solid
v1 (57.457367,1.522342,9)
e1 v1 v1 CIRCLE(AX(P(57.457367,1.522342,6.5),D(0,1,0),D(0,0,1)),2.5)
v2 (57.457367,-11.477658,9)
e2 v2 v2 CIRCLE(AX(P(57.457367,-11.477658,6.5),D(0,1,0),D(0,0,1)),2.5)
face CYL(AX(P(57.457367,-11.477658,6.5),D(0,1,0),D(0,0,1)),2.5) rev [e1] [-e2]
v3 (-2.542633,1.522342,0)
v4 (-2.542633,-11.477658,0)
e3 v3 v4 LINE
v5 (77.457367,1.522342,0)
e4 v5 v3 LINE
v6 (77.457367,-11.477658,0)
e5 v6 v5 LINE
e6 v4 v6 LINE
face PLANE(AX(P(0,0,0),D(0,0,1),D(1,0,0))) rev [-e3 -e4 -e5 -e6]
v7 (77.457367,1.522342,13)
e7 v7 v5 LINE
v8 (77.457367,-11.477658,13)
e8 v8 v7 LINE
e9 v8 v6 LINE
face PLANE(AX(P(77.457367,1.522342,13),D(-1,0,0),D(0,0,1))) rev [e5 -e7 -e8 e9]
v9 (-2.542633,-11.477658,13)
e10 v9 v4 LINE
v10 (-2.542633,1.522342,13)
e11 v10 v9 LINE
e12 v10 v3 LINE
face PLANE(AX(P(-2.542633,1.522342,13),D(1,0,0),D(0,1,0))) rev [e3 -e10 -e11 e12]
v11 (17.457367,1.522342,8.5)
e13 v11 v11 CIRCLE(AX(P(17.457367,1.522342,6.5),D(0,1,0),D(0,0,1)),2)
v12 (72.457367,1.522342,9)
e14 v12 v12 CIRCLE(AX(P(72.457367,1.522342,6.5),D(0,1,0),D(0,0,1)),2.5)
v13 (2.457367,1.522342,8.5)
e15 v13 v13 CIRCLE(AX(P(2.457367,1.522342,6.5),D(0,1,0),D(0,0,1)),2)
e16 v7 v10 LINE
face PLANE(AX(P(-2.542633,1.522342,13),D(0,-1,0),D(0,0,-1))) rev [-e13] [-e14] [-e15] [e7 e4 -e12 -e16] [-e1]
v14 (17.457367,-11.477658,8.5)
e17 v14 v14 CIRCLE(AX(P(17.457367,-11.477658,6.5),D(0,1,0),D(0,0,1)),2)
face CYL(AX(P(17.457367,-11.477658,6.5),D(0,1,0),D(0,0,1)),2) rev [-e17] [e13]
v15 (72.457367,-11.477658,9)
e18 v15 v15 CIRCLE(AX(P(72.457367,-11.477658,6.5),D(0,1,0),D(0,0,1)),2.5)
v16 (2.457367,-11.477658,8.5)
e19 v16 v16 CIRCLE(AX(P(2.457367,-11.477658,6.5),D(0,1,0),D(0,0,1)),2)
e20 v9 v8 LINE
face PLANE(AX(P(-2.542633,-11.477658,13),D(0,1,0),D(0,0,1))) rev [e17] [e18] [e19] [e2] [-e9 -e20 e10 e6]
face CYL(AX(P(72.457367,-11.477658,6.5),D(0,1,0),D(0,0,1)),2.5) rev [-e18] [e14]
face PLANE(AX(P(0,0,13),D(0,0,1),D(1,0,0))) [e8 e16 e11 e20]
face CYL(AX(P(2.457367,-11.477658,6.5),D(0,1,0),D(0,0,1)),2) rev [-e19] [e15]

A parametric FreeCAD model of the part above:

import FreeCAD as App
import Part
import Sketcher
from FreeCAD import Vector
Q = App.Units.Quantity

doc = App.newDocument("Part")
body = doc.addObject("PartDesign::Body", "Body")

# Sketch on XY plane
sketch1 = doc.addObject("Sketcher::SketchObject", "Sketch")
body.addObject(sketch1)
sketch1.AttachmentSupport = (doc.XY_Plane, [""])
sketch1.MapMode = "FlatFace"
sketch1.addGeometry([
    Part.LineSegment(Vector(-2.542633, 1.522342, 0), Vector(-2.542633, -11.477658, 0)),
    Part.LineSegment(Vector(-2.542633, -11.477658, 0), Vector(77.457367, -11.477658, 0)),
    Part.LineSegment(Vector(77.457367, -11.477658, 0), Vector(77.457367, 1.522342, 0)),
    Part.LineSegment(Vector(77.457367, 1.522342, 0), Vector(-2.542633, 1.522342, 0)),
], False)
sketch1.addConstraint([
    Sketcher.Constraint("Coincident", 0, 2, 1, 1),
    Sketcher.Constraint("Coincident", 1, 2, 2, 1),
    Sketcher.Constraint("Coincident", 2, 2, 3, 1),
    Sketcher.Constraint("Coincident", 3, 2, 0, 1),
    Sketcher.Constraint("Vertical", 0),
    Sketcher.Constraint("Horizontal", 1),
    Sketcher.Constraint("Vertical", 2),
    Sketcher.Constraint("Horizontal", 3),
    Sketcher.Constraint("DistanceX", 1, 1, 1, 2, Q("80 mm")),
    Sketcher.Constraint("DistanceY", 0, 2, 0, 1, Q("13 mm")),
    Sketcher.Constraint("DistanceX", 0, 2, -1, 1, Q("2.542633 mm")),
    Sketcher.Constraint("DistanceY", 0, 2, -1, 1, Q("11.477658 mm")),
])
pad1 = doc.addObject("PartDesign::Pad", "Pad")
body.addObject(pad1)
pad1.Profile = sketch1
pad1.Length = 13

# Sketch on XZ plane
sketch2 = doc.addObject("Sketcher::SketchObject", "Sketch001")
body.addObject(sketch2)
sketch2.AttachmentSupport = (doc.XZ_Plane, [""])
sketch2.MapMode = "FlatFace"
sketch2.AttachmentOffset = App.Placement(Vector(0, 0, -1.522342), App.Rotation())
sketch2.addGeometry([
    Part.Circle(Vector(17.457367, 6.5, 0), Vector(0, 0, 1), 2),
    Part.Circle(Vector(72.457367, 6.5, 0), Vector(0, 0, 1), 2.5),
    Part.Circle(Vector(57.457367, 6.5, 0), Vector(0, 0, 1), 2.5),
    Part.Circle(Vector(2.457367, 6.5, 0), Vector(0, 0, 1), 2),
], False)
sketch2.addConstraint([
    Sketcher.Constraint("Equal", 1, 2),
    Sketcher.Constraint("Equal", 0, 3),
    Sketcher.Constraint("Horizontal", 0, 3, 1, 3),
    Sketcher.Constraint("Horizontal", 1, 3, 2, 3),
    Sketcher.Constraint("Horizontal", 2, 3, 3, 3),
    Sketcher.Constraint("Diameter", 0, Q("4 mm")),
    Sketcher.Constraint("Diameter", 1, Q("5 mm")),
    Sketcher.Constraint("DistanceX", 0, 3, 1, 3, Q("55 mm")),
    Sketcher.Constraint("DistanceX", 2, 3, 1, 3, Q("15 mm")),
    Sketcher.Constraint("DistanceX", 3, 3, 0, 3, Q("15 mm")),
    Sketcher.Constraint("DistanceY", -1, 1, 0, 3, Q("6.5 mm")),
    Sketcher.Constraint("DistanceX", -1, 1, 0, 3, Q("17.457367 mm")),
])
pocket1 = doc.addObject("PartDesign::Pocket", "Pocket")
body.addObject(pocket1)
pocket1.Profile = sketch2
pocket1.Type = "ThroughAll"
pocket1.Reversed = True

doc.recompute()
